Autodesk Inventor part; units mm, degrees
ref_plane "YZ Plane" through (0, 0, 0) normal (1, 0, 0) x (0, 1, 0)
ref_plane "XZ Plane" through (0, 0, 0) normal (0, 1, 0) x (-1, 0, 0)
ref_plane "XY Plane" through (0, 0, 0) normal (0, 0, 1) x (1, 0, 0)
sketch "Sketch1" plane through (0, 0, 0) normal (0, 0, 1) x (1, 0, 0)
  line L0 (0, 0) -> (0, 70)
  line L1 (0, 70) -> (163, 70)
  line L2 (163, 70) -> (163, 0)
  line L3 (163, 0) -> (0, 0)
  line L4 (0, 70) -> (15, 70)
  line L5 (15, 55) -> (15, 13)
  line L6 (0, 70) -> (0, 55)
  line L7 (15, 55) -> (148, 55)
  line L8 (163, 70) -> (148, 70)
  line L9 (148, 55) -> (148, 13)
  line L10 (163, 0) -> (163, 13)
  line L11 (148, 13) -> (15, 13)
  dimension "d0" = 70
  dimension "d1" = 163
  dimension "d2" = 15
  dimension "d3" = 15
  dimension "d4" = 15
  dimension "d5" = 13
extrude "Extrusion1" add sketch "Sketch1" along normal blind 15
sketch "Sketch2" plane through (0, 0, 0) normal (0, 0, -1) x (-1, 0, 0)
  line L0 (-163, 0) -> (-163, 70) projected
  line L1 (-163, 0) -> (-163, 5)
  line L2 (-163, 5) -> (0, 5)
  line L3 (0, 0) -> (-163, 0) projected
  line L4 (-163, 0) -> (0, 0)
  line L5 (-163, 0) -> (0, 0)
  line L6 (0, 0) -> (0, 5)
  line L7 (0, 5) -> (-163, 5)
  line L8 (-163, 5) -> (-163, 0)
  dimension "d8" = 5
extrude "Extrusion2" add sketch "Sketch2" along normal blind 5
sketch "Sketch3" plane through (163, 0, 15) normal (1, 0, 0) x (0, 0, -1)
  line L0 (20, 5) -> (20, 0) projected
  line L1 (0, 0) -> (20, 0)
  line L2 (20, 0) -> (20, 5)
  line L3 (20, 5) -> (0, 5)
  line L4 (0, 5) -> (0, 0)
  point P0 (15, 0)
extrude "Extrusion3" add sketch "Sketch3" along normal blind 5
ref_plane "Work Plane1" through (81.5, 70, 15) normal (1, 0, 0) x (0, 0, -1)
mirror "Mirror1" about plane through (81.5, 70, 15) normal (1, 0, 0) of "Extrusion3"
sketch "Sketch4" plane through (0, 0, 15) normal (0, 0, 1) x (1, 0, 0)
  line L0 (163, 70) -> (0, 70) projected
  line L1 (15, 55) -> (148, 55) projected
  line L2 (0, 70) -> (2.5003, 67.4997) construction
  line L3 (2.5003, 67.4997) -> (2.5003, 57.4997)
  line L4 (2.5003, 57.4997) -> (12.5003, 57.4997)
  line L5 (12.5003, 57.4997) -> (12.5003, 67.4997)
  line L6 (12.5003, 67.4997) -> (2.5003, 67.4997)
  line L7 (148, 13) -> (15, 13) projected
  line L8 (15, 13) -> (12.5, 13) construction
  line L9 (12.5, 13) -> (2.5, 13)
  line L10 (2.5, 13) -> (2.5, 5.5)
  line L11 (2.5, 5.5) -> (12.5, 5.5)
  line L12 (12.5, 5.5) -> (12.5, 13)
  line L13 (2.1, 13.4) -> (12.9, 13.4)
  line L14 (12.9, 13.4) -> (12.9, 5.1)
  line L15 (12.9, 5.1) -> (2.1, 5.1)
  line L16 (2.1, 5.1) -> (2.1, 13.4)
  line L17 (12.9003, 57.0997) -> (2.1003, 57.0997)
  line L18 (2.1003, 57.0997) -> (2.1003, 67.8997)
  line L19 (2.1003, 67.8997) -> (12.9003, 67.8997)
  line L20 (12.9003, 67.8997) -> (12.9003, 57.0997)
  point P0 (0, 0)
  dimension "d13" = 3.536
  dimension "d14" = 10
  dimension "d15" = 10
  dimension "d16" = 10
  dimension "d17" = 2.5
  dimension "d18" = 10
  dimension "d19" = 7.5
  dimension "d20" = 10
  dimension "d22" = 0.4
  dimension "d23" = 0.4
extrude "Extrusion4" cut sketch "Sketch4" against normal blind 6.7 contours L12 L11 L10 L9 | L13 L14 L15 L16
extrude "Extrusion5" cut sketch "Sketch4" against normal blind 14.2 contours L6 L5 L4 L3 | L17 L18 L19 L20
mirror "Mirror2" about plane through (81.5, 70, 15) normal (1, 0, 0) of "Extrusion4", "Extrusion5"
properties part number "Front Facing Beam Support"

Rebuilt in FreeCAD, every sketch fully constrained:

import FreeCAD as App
import Part
import Sketcher
from FreeCAD import Vector


def add_polygon(sketch, points):
    """Adds a closed chain of lines whose ends are joined by coincident constraints."""
    first, n = sketch.GeometryCount, len(points)
    for a, b in zip(points, points[1:] + points[:1]):
        sketch.addGeometry(Part.LineSegment(App.Vector(*a, 0), App.Vector(*b, 0)), False)
    for i in range(n):
        sketch.addConstraint(Sketcher.Constraint("Coincident", first + i, 2, first + (i + 1) % n, 1))

doc = App.newDocument("Part")
params = doc.addObject("Spreadsheet::Sheet", "Params")
for row, (alias, value) in enumerate([
    ("sketch1_width", "163 mm"),
    ("sketch1_height", "70 mm"),
    ("pad1_length", "15 mm"),
    ("sketch2_height", "5 mm"),
    ("sketch2_width", "163 mm"),
    ("pad2_length", "5 mm"),
    ("sketch3_width", "5 mm"),
    ("sketch3_height", "20 mm"),
    ("pad3_length", "5 mm"),
    ("sketch4_width", "10.8 mm"),
    ("sketch4_height", "8.3 mm"),
    ("pocket1_length", "6.7 mm"),
    ("sketch5_width", "10.8 mm"),
    ("pocket2_length", "14.2 mm"),
], start=1):
    params.set(f"A{row}", alias)
    params.set(f"B{row}", "=" + value)
    params.setAlias(f"B{row}", alias)

body = doc.addObject("PartDesign::Body", "Body")

# Sketch on XY plane
sketch1 = body.newObject("Sketcher::SketchObject", "Sketch")
sketch1.AttachmentSupport = (doc.getObject("XY_Plane"), [""])
sketch1.MapMode = "FlatFace"
add_polygon(sketch1, [(0, 70), (0, 0), (163, 0), (163, 70)])  # lines 0-3
add_polygon(sketch1, [(15, 13), (15, 55), (148, 55), (148, 13)])  # lines 4-7
sketch1.addConstraint(Sketcher.Constraint("Vertical", 0))
sketch1.addConstraint(Sketcher.Constraint("Horizontal", 1))
sketch1.addConstraint(Sketcher.Constraint("Vertical", 2))
sketch1.addConstraint(Sketcher.Constraint("Horizontal", 3))
sketch1.addConstraint(Sketcher.Constraint("Vertical", 4))
sketch1.addConstraint(Sketcher.Constraint("Horizontal", 5))
sketch1.addConstraint(Sketcher.Constraint("Vertical", 6))
sketch1.addConstraint(Sketcher.Constraint("Horizontal", 7))
sketch1.addConstraint(Sketcher.Constraint("Coincident", 0, 2, -1, 1))
sketch1.addConstraint(Sketcher.Constraint("DistanceX", 1, 1, 1, 2, 163.0))
sketch1.addConstraint(Sketcher.Constraint("DistanceY", 0, 2, 0, 1, 70.0))
sketch1.addConstraint(Sketcher.Constraint("DistanceX", -1, 1, 4, 2, 15.0))
sketch1.addConstraint(Sketcher.Constraint("DistanceY", -1, 1, 6, 2, 13.0))
sketch1.addConstraint(Sketcher.Constraint("DistanceY", 4, 2, 3, 2, 15.0))
sketch1.addConstraint(Sketcher.Constraint("DistanceX", 5, 2, 2, 2, 15.0))
sketch1.setExpression("Constraints[17]", "Params.sketch1_width")
sketch1.setExpression("Constraints[18]", "Params.sketch1_height")
pad1 = body.newObject("PartDesign::Pad", "Pad")
pad1.Profile = sketch1
pad1.setExpression("Length", "Params.pad1_length")

# Sketch on XY plane
sketch2 = body.newObject("Sketcher::SketchObject", "Sketch001")
sketch2.AttachmentSupport = (doc.getObject("XY_Plane"), [""])
sketch2.MapMode = "FlatFace"
add_polygon(sketch2, [(163, 5), (163, 0), (0, 0), (0, 5)])  # lines 0-3
sketch2.addConstraint(Sketcher.Constraint("Vertical", 0))
sketch2.addConstraint(Sketcher.Constraint("Horizontal", 1))
sketch2.addConstraint(Sketcher.Constraint("Vertical", 2))
sketch2.addConstraint(Sketcher.Constraint("Horizontal", 3))
sketch2.addConstraint(Sketcher.Constraint("Coincident", 1, 2, -1, 1))
sketch2.addConstraint(Sketcher.Constraint("DistanceY", 0, 2, 0, 1, 5.0))
sketch2.addConstraint(Sketcher.Constraint("DistanceX", 1, 2, 1, 1, 163.0))
sketch2.setExpression("Constraints[9]", "Params.sketch2_height")
sketch2.setExpression("Constraints[10]", "Params.sketch2_width")
pad2 = body.newObject("PartDesign::Pad", "Pad001")
pad2.Profile = sketch2
pad2.setExpression("Length", "Params.pad2_length")
pad2.Reversed = True

# Sketch on YZ plane
sketch3 = body.newObject("Sketcher::SketchObject", "Sketch002")
sketch3.AttachmentSupport = (doc.getObject("YZ_Plane"), [""])
sketch3.MapMode = "FlatFace"
sketch3.AttachmentOffset = App.Placement(Vector(0, 0, 163), App.Rotation())
add_polygon(sketch3, [(0, -5), (5, -5), (5, 15), (0, 15)])  # lines 0-3
sketch3.addConstraint(Sketcher.Constraint("Horizontal", 0))
sketch3.addConstraint(Sketcher.Constraint("Vertical", 1))
sketch3.addConstraint(Sketcher.Constraint("Horizontal", 2))
sketch3.addConstraint(Sketcher.Constraint("Vertical", 3))
sketch3.addConstraint(Sketcher.Constraint("PointOnObject", 2, 2, -2))
sketch3.addConstraint(Sketcher.Constraint("DistanceX", 0, 1, 0, 2, 5.0))
sketch3.addConstraint(Sketcher.Constraint("DistanceY", 1, 1, 1, 2, 20.0))
sketch3.addConstraint(Sketcher.Constraint("DistanceY", 0, 2, -1, 1, 5.0))
sketch3.setExpression("Constraints[9]", "Params.sketch3_width")
sketch3.setExpression("Constraints[10]", "Params.sketch3_height")
pad3 = body.newObject("PartDesign::Pad", "Pad002")
pad3.Profile = sketch3
pad3.setExpression("Length", "Params.pad3_length")
doc.recompute()

datumplane = body.newObject("PartDesign::Plane", "DatumPlane")
datumplane.AttachmentSupport = (doc.getObject("YZ_Plane"), [""])
datumplane.MapMode = "FlatFace"
datumplane.AttachmentOffset = App.Placement(Vector(0, 0, 81.5), App.Rotation())
mirrored = body.newObject("PartDesign::Mirrored", "Mirrored")
mirrored.Originals = [pad3]
mirrored.MirrorPlane = (datumplane, [""])
body.Tip = mirrored

# Sketch on XY plane
sketch4 = body.newObject("Sketcher::SketchObject", "Sketch003")
sketch4.AttachmentSupport = (doc.getObject("XY_Plane"), [""])
sketch4.MapMode = "FlatFace"
sketch4.AttachmentOffset = App.Placement(Vector(0, 0, 15), App.Rotation())
add_polygon(sketch4, [(13, 13), (2, 13), (2, 5), (13, 5)])  # lines 0-3
sketch4.addConstraint(Sketcher.Constraint("Horizontal", 0))
sketch4.addConstraint(Sketcher.Constraint("Vertical", 1))
sketch4.addConstraint(Sketcher.Constraint("Horizontal", 2))
sketch4.addConstraint(Sketcher.Constraint("Vertical", 3))
sketch4.addConstraint(Sketcher.Constraint("DistanceX", 0, 2, 0, 1, 10.8))
sketch4.addConstraint(Sketcher.Constraint("DistanceY", 1, 2, 1, 1, 8.3))
sketch4.addConstraint(Sketcher.Constraint("DistanceX", -1, 1, 0, 2, 2.1))
sketch4.addConstraint(Sketcher.Constraint("DistanceY", -1, 1, 0, 2, 13.4))
sketch4.setExpression("Constraints[8]", "Params.sketch4_width")
sketch4.setExpression("Constraints[9]", "Params.sketch4_height")
pocket1 = body.newObject("PartDesign::Pocket", "Pocket")
pocket1.Profile = sketch4
pocket1.setExpression("Length", "Params.pocket1_length")

# Sketch on XY plane
sketch5 = body.newObject("Sketcher::SketchObject", "Sketch004")
sketch5.AttachmentSupport = (doc.getObject("XY_Plane"), [""])
sketch5.MapMode = "FlatFace"
sketch5.AttachmentOffset = App.Placement(Vector(0, 0, 15), App.Rotation())
add_polygon(sketch5, [(2, 57), (13, 57), (13, 68), (2, 68)])  # lines 0-3
sketch5.addConstraint(Sketcher.Constraint("Horizontal", 0))
sketch5.addConstraint(Sketcher.Constraint("Vertical", 1))
sketch5.addConstraint(Sketcher.Constraint("Horizontal", 2))
sketch5.addConstraint(Sketcher.Constraint("Vertical", 3))
sketch5.addConstraint(Sketcher.Constraint("Equal", 2, 1))
sketch5.addConstraint(Sketcher.Constraint("DistanceX", 0, 1, 0, 2, 10.8))
sketch5.addConstraint(Sketcher.Constraint("DistanceX", -1, 1, 0, 2, 12.9003))
sketch5.addConstraint(Sketcher.Constraint("DistanceY", -1, 1, 0, 2, 57.0997))
sketch5.setExpression("Constraints[9]", "Params.sketch5_width")
pocket2 = body.newObject("PartDesign::Pocket", "Pocket001")
pocket2.Profile = sketch5
pocket2.setExpression("Length", "Params.pocket2_length")
doc.recompute()

datumplane2 = body.newObject("PartDesign::Plane", "DatumPlane001")
datumplane2.AttachmentSupport = (doc.getObject("YZ_Plane"), [""])
datumplane2.MapMode = "FlatFace"
datumplane2.AttachmentOffset = App.Placement(Vector(0, 0, 81.5), App.Rotation())
mirrored2 = body.newObject("PartDesign::Mirrored", "Mirrored001")
mirrored2.Originals = [pocket1, pocket2]
mirrored2.MirrorPlane = (datumplane2, [""])
body.Tip = mirrored2

doc.recompute()
